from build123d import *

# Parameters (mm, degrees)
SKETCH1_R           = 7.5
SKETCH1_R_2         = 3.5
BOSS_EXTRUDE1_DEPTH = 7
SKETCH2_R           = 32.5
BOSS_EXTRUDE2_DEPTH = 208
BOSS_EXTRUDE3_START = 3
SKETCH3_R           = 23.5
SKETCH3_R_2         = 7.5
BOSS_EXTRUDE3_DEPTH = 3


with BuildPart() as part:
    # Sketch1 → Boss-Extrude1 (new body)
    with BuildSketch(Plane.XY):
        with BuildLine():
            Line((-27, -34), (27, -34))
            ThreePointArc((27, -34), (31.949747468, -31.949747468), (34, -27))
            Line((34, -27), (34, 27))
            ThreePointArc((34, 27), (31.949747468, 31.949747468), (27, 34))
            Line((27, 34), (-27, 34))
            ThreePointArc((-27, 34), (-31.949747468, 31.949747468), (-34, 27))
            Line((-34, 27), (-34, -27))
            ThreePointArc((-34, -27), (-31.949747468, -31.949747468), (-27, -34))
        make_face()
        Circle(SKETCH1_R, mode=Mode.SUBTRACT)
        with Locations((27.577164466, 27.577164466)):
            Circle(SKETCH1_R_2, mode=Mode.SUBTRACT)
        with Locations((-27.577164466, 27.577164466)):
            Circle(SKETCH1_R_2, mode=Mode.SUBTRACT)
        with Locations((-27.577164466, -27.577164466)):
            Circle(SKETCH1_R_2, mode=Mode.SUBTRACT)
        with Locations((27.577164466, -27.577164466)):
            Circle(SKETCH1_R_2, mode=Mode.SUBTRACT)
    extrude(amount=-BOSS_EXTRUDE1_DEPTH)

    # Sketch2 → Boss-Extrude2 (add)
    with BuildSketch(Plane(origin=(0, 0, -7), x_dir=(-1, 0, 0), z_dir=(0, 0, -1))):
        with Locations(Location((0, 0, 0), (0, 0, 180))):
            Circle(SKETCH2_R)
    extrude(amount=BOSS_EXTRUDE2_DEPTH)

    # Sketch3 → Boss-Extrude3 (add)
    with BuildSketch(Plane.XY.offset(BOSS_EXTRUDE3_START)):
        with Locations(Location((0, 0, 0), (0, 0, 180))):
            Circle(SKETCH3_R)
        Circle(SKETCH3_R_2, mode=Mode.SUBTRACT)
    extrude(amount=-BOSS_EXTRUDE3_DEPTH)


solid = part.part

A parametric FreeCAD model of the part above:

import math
import FreeCAD as App
import Part
import Sketcher
from FreeCAD import Vector
Q = App.Units.Quantity

doc = App.newDocument("Part")
body = doc.addObject("PartDesign::Body", "Body")

# Sketch on XY plane
sketch1 = doc.addObject("Sketcher::SketchObject", "Sketch")
body.addObject(sketch1)
sketch1.AttachmentSupport = (doc.XY_Plane, [""])
sketch1.MapMode = "FlatFace"
sketch1.addGeometry([
    Part.LineSegment(Vector(-27, -34, 0), Vector(27, -34, 0)),  # 0
    Part.ArcOfCircle(Part.Circle(Vector(27, -27, 0), Vector(0, 0, 1), 7), math.radians(-90), math.radians(0)),  # 1
    Part.LineSegment(Vector(34, -27, 0), Vector(34, 27, 0)),  # 2
    Part.ArcOfCircle(Part.Circle(Vector(27, 27, 0), Vector(0, 0, 1), 7), math.radians(0), math.radians(90)),  # 3
    Part.LineSegment(Vector(27, 34, 0), Vector(-27, 34, 0)),  # 4
    Part.ArcOfCircle(Part.Circle(Vector(-27, 27, 0), Vector(0, 0, 1), 7), math.radians(90), math.radians(180)),  # 5
    Part.LineSegment(Vector(-34, 27, 0), Vector(-34, -27, 0)),  # 6
    Part.ArcOfCircle(Part.Circle(Vector(-27, -27, 0), Vector(0, 0, 1), 7), math.radians(-180), math.radians(-90)),  # 7
    Part.Circle(Vector(-27.6, -27.6, 0), Vector(0, 0, 1), 3.5),  # 8
    Part.Circle(Vector(27.6, -27.6, 0), Vector(0, 0, 1), 3.5),  # 9
    Part.Circle(Vector(-27.6, 27.6, 0), Vector(0, 0, 1), 3.5),  # 10
    Part.Circle(Vector(0, 0, 0), Vector(0, 0, 1), 7.5),  # 11
    Part.Circle(Vector(27.6, 27.6, 0), Vector(0, 0, 1), 3.5),  # 12
], False)
sketch1.addConstraint([
    Sketcher.Constraint("Tangent", 0, 2, 1, 1),
    Sketcher.Constraint("Tangent", 1, 2, 2, 1),
    Sketcher.Constraint("Tangent", 2, 2, 3, 1),
    Sketcher.Constraint("Tangent", 3, 2, 4, 1),
    Sketcher.Constraint("Tangent", 4, 2, 5, 1),
    Sketcher.Constraint("Tangent", 5, 2, 6, 1),
    Sketcher.Constraint("Tangent", 6, 2, 7, 1),
    Sketcher.Constraint("Tangent", 7, 2, 0, 1),
    Sketcher.Constraint("Horizontal", 0),
    Sketcher.Constraint("Vertical", 2),
    Sketcher.Constraint("Horizontal", 4),
    Sketcher.Constraint("Vertical", 6),
    Sketcher.Constraint("Coincident", 11, 3, -1, 1),
    Sketcher.Constraint("Equal", 1, 3),
    Sketcher.Constraint("Equal", 3, 5),
    Sketcher.Constraint("Equal", 5, 7),
    Sketcher.Constraint("Equal", 8, 9),
    Sketcher.Constraint("Equal", 9, 10),
    Sketcher.Constraint("Equal", 10, 12),
    Sketcher.Constraint("Symmetric", 1, 3, 5, 3, -1, 1),
    Sketcher.Constraint("Symmetric", 9, 3, 10, 3, -1, 1),
    Sketcher.Constraint("Symmetric", 8, 3, 12, 3, -1, 1),
    Sketcher.Constraint("Symmetric", 8, 3, 9, 3, -2),
    Sketcher.Constraint("Equal", 4, 2),
    Sketcher.Constraint("Diameter", 8, Q("7 mm")),
    Sketcher.Constraint("Diameter", 11, Q("15 mm")),
    Sketcher.Constraint("Radius", 1, Q("7 mm")),
    Sketcher.Constraint("DistanceX", 0, 1, 0, 2, Q("54 mm")),
    Sketcher.Constraint("DistanceX", 8, 3, 9, 3, Q("55.154329 mm")),
    Sketcher.Constraint("DistanceY", 8, 3, 10, 3, Q("55.154329 mm")),
])
pad1 = doc.addObject("PartDesign::Pad", "Pad")
body.addObject(pad1)
pad1.Profile = sketch1
pad1.Length = 7
pad1.Reversed = True

# Sketch on XY plane
sketch2 = doc.addObject("Sketcher::SketchObject", "Sketch001")
body.addObject(sketch2)
sketch2.AttachmentSupport = (doc.XY_Plane, [""])
sketch2.MapMode = "FlatFace"
sketch2.AttachmentOffset = App.Placement(Vector(0, 0, -7), App.Rotation())
sketch2.addGeometry(Part.Circle(Vector(0, 0, 0), Vector(0, 0, 1), 32), False)
sketch2.addConstraint([
    Sketcher.Constraint("Coincident", 0, 3, -1, 1),
    Sketcher.Constraint("Diameter", 0, Q("65 mm")),
])
pad2 = doc.addObject("PartDesign::Pad", "Pad001")
body.addObject(pad2)
pad2.Profile = sketch2
pad2.Length = 208
pad2.Reversed = True

# Sketch on XY plane
sketch3 = doc.addObject("Sketcher::SketchObject", "Sketch002")
body.addObject(sketch3)
sketch3.AttachmentSupport = (doc.XY_Plane, [""])
sketch3.MapMode = "FlatFace"
sketch3.AttachmentOffset = App.Placement(Vector(0, 0, 3), App.Rotation())
sketch3.addGeometry([
    Part.Circle(Vector(0, 0, 0), Vector(0, 0, 1), 24),
    Part.Circle(Vector(0, 0, 0), Vector(0, 0, 1), 8),
], False)
sketch3.addConstraint([
    Sketcher.Constraint("Coincident", 0, 3, -1, 1),
    Sketcher.Constraint("Coincident", 1, 3, -1, 1),
    Sketcher.Constraint("Diameter", 0, Q("47 mm")),
    Sketcher.Constraint("Diameter", 1, Q("15 mm")),
])
pad3 = doc.addObject("PartDesign::Pad", "Pad002")
body.addObject(pad3)
pad3.Profile = sketch3
pad3.Length = 3
pad3.Reversed = True

doc.recompute()
